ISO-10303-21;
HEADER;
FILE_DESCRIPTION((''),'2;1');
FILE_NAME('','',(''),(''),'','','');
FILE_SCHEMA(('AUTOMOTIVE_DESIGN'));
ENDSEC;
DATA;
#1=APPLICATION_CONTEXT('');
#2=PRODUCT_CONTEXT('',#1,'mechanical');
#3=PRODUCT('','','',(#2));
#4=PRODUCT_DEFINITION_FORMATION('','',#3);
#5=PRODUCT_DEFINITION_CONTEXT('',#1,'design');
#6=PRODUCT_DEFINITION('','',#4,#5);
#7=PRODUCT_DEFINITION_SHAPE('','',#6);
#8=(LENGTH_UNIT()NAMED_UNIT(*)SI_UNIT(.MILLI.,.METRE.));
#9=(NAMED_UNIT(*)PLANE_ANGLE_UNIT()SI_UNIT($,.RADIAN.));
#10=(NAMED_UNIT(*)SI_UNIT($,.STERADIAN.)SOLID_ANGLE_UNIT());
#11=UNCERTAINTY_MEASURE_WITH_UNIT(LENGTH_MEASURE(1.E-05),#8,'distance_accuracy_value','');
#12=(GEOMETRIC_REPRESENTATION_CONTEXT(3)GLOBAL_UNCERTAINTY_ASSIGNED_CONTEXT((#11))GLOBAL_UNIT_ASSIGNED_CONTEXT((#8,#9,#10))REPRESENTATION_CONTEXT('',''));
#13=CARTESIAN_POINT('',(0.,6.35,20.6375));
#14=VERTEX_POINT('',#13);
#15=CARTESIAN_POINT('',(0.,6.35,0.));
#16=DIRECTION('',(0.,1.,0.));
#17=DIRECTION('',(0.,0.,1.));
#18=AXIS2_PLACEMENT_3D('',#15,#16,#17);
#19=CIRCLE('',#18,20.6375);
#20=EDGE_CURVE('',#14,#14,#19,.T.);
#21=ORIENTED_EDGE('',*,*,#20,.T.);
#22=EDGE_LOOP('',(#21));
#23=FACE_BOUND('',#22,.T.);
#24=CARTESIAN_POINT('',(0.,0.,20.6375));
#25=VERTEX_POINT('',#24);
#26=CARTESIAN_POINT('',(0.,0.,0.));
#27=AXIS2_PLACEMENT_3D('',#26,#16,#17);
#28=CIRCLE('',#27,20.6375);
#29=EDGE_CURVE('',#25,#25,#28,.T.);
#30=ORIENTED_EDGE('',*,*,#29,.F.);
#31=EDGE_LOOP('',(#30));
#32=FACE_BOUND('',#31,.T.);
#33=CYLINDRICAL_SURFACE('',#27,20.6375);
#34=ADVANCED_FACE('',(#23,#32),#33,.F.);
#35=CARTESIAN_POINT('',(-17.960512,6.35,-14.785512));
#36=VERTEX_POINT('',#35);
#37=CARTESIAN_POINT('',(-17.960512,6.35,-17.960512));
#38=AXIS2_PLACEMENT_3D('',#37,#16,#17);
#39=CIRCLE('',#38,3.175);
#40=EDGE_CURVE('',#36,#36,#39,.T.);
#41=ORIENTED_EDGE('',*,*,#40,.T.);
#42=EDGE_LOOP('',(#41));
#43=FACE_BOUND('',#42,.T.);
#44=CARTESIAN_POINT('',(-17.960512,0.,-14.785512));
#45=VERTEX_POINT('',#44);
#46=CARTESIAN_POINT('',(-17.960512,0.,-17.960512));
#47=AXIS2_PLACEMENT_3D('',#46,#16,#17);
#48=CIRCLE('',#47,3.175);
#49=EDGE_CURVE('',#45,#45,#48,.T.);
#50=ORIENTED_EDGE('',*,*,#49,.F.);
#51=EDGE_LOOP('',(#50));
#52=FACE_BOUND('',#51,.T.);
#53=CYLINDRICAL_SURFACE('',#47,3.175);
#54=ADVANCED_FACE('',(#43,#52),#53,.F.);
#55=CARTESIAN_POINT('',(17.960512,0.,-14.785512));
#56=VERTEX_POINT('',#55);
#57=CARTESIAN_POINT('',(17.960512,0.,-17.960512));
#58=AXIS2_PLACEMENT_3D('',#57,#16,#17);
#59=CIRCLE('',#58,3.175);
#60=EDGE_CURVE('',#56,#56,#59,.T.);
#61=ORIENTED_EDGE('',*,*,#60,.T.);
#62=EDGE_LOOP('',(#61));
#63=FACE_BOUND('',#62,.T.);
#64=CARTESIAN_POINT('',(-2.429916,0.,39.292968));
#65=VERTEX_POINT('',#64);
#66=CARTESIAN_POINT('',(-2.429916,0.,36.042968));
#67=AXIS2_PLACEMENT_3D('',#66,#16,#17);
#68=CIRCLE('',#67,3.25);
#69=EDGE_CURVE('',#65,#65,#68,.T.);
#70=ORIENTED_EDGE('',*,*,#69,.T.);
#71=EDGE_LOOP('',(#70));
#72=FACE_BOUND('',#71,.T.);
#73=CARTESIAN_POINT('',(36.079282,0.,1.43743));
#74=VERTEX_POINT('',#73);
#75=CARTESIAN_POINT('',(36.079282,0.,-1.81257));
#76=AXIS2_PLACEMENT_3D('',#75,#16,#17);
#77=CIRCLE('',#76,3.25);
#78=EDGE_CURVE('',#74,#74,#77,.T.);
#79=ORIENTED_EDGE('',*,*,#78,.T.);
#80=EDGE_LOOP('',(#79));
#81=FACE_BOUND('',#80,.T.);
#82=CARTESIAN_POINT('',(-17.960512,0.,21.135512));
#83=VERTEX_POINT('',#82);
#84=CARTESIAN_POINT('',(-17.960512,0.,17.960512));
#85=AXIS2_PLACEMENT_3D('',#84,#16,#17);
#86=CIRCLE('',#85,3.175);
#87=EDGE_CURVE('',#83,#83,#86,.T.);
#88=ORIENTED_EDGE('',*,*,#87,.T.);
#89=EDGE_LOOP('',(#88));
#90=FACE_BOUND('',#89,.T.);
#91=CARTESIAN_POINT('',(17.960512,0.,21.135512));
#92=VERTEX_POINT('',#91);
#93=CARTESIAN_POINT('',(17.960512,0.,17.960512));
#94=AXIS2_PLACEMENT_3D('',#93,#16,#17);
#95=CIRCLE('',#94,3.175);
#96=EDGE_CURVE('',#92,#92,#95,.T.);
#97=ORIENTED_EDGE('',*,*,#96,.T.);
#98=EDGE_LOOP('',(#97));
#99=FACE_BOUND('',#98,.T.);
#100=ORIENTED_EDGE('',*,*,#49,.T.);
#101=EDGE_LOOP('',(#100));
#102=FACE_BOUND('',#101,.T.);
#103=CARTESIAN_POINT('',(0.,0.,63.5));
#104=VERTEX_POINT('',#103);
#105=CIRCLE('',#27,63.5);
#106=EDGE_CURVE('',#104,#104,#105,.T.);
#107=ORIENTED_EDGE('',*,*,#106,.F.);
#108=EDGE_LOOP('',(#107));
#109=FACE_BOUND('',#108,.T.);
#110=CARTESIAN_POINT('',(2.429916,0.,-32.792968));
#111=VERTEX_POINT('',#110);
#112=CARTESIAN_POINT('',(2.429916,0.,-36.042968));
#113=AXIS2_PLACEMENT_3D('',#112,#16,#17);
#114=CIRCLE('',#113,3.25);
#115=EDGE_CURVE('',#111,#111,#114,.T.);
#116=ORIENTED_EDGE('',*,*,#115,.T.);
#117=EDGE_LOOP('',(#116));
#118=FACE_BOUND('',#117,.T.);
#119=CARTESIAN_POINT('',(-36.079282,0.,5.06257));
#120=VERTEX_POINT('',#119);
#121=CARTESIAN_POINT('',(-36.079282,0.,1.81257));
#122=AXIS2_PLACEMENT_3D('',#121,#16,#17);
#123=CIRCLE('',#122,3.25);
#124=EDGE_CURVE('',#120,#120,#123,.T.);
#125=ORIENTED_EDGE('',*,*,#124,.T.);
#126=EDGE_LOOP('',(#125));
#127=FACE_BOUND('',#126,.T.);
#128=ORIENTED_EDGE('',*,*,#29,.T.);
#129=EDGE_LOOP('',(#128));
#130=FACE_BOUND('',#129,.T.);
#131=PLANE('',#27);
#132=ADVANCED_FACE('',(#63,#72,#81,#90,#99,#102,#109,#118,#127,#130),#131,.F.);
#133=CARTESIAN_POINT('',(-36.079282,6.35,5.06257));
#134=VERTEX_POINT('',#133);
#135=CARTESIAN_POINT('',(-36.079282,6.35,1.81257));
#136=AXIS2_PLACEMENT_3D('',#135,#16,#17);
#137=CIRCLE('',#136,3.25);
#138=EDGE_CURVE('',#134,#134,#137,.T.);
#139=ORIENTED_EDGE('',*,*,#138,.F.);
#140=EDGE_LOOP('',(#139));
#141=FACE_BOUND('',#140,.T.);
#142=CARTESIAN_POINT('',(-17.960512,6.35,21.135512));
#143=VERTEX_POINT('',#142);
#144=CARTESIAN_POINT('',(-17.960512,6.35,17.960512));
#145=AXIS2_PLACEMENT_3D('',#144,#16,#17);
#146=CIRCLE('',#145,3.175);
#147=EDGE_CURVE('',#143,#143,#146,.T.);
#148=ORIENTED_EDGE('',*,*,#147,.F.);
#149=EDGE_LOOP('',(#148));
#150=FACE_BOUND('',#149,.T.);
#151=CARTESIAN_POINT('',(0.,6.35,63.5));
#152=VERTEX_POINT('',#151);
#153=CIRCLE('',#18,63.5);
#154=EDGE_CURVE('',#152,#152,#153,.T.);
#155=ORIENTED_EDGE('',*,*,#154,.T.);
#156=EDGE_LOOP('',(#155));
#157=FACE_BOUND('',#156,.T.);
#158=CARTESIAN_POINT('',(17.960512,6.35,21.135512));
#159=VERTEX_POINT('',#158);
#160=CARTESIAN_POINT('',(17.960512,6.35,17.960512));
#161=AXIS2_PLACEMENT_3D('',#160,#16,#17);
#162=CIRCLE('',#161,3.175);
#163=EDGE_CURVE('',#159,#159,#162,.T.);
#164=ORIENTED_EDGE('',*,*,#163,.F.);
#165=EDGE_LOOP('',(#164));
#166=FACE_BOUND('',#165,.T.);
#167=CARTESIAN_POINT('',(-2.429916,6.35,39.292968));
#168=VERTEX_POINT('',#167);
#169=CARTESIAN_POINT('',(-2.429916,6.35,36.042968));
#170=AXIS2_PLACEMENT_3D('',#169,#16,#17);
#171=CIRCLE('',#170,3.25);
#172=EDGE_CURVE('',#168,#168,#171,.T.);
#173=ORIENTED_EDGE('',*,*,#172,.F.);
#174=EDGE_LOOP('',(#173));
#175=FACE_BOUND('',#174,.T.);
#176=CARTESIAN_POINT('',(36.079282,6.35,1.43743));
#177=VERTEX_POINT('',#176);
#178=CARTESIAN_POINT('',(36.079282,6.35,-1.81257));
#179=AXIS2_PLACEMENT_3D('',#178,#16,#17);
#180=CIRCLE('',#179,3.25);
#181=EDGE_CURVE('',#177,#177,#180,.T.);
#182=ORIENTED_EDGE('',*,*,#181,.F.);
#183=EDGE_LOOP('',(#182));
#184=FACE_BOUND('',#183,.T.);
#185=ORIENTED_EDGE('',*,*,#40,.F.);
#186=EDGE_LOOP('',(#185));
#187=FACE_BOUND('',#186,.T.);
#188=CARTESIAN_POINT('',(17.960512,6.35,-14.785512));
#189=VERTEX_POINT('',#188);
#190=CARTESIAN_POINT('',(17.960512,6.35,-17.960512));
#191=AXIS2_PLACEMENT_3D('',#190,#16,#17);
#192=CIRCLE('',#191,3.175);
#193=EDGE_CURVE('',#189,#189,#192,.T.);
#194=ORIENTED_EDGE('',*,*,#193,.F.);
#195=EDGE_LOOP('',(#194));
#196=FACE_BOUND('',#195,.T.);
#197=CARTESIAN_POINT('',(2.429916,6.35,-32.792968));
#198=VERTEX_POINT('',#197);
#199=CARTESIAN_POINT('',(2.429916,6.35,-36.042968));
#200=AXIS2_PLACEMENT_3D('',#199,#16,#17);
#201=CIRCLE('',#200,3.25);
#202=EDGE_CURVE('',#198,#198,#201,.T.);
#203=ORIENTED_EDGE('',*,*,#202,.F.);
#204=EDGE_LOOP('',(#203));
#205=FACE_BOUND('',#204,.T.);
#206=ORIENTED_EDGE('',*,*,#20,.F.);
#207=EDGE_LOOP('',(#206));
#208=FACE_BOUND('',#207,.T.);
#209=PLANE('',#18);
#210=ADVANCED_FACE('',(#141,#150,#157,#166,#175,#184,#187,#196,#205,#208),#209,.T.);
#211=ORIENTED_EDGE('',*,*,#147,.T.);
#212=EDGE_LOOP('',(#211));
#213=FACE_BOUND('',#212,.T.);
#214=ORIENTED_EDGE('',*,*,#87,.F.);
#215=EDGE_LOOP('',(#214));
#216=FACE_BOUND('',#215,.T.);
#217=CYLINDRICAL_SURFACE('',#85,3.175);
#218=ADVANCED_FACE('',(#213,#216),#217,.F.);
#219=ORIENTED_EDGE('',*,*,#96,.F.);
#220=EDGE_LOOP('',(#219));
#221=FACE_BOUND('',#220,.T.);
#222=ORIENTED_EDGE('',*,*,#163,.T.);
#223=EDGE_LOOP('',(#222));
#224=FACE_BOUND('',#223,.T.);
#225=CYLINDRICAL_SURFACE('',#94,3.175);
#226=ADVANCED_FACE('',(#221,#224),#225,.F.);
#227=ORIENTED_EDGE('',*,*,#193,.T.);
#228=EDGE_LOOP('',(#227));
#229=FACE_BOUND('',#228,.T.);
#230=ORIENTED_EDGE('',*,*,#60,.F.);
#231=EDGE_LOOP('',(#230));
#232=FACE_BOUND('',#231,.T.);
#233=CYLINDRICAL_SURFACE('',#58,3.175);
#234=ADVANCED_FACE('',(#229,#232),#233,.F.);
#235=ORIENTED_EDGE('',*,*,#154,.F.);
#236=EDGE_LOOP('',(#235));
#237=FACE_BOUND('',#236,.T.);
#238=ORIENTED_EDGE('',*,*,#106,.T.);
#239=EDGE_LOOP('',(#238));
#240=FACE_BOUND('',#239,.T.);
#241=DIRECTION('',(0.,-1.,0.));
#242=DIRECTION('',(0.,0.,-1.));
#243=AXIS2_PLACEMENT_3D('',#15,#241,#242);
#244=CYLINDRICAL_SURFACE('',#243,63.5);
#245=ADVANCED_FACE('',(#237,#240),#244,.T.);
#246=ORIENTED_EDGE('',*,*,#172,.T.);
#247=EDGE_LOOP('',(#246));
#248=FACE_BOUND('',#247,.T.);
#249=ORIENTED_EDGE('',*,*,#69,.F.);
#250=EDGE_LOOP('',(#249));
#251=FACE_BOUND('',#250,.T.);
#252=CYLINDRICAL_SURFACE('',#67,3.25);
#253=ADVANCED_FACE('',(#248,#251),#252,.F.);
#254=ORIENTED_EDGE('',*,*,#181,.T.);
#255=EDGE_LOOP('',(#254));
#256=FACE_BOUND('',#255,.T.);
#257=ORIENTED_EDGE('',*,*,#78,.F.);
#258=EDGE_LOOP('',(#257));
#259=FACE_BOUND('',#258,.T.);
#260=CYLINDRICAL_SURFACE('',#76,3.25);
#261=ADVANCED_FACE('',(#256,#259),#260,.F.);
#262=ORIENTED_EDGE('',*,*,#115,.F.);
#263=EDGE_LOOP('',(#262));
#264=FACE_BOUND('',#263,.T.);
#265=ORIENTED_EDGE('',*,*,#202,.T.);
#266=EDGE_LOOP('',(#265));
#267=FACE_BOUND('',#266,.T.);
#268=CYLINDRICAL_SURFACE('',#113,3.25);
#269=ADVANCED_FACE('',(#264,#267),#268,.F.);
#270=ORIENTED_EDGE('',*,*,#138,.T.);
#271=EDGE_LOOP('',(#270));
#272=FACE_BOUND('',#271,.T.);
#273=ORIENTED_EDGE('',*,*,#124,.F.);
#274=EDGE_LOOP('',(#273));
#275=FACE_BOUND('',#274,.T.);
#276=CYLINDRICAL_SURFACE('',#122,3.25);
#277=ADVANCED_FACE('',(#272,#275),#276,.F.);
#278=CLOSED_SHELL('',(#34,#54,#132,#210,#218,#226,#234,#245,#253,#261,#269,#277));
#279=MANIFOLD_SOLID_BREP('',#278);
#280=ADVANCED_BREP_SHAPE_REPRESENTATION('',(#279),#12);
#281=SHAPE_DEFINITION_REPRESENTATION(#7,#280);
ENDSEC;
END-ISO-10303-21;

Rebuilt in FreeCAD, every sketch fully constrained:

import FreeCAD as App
import Part
import Sketcher
Q = App.Units.Quantity

doc = App.newDocument("Part")
body = doc.addObject("PartDesign::Body", "Body")

# Sketch on XZ plane
sketch1 = body.newObject("Sketcher::SketchObject", "Sketch")
sketch1.AttachmentSupport = (doc.getObject("XZ_Plane"), [""])
sketch1.MapMode = "FlatFace"
sketch1.addGeometry(Part.Circle(App.Vector(0, 0, 0), App.Vector(0, 0, 1), 64), False)
sketch1.addConstraint(Sketcher.Constraint("Coincident", 0, 3, -1, 1))
sketch1.addConstraint(Sketcher.Constraint("Diameter", 0, Q("5 in")))
pad1 = body.newObject("PartDesign::Pad", "Pad")
pad1.Profile = sketch1
pad1.Length = Q("0.25 in")
pad1.Reversed = True

# Sketch on XZ plane
sketch2 = body.newObject("Sketcher::SketchObject", "Sketch001")
sketch2.AttachmentSupport = (doc.getObject("XZ_Plane"), [""])
sketch2.MapMode = "FlatFace"
sketch2.AttachmentOffset = App.Placement(App.Vector(0, 0, -0.25 * 25.4), App.Rotation())
sketch2.addGeometry(Part.Circle(App.Vector(0, 0, 0), App.Vector(0, 0, 1), 21), False)
sketch2.addConstraint(Sketcher.Constraint("Coincident", 0, 3, -1, 1))
sketch2.addConstraint(Sketcher.Constraint("Diameter", 0, Q("1.625 in")))
pocket1 = body.newObject("PartDesign::Pocket", "Pocket")
pocket1.Profile = sketch2
pocket1.Type = "ThroughAll"
pocket1.Reversed = True

# Sketch on XZ plane
sketch3 = body.newObject("Sketcher::SketchObject", "Sketch002")
sketch3.AttachmentSupport = (doc.getObject("XZ_Plane"), [""])
sketch3.MapMode = "FlatFace"
sketch3.AttachmentOffset = App.Placement(App.Vector(0, 0, -0.25 * 25.4), App.Rotation())
sketch3.addGeometry(Part.Circle(App.Vector(-18, -18, 0), App.Vector(0, 0, 1), 3.2), False)
sketch3.addGeometry(Part.Circle(App.Vector(18, -18, 0), App.Vector(0, 0, 1), 3.2), False)
sketch3.addGeometry(Part.Circle(App.Vector(18, 18, 0), App.Vector(0, 0, 1), 3.2), False)
sketch3.addGeometry(Part.Circle(App.Vector(-18, 18, 0), App.Vector(0, 0, 1), 3.2), False)
sketch3.addConstraint(Sketcher.Constraint("Equal", 0, 1))
sketch3.addConstraint(Sketcher.Constraint("Equal", 1, 2))
sketch3.addConstraint(Sketcher.Constraint("Equal", 2, 3))
sketch3.addConstraint(Sketcher.Constraint("Symmetric", 0, 3, 2, 3, -1, 1))
sketch3.addConstraint(Sketcher.Constraint("Symmetric", 1, 3, 3, 3, -1, 1))
sketch3.addConstraint(Sketcher.Constraint("Symmetric", 0, 3, 1, 3, -2))
sketch3.addConstraint(Sketcher.Constraint("Diameter", 0, Q("0.25 in")))
sketch3.addConstraint(Sketcher.Constraint("DistanceX", 0, 3, -1, 1, Q("17.960512 mm")))
sketch3.addConstraint(Sketcher.Constraint("DistanceY", 0, 3, -1, 1, Q("17.960512 mm")))
pocket2 = body.newObject("PartDesign::Pocket", "Pocket001")
pocket2.Profile = sketch3
pocket2.Type = "ThroughAll"
pocket2.Reversed = True

# Sketch on XZ plane
sketch4 = body.newObject("Sketcher::SketchObject", "Sketch003")
sketch4.AttachmentSupport = (doc.getObject("XZ_Plane"), [""])
sketch4.MapMode = "FlatFace"
sketch4.AttachmentOffset = App.Placement(App.Vector(0, 0, -0.25 * 25.4), App.Rotation())
sketch4.addGeometry(Part.Circle(App.Vector(-36.1, 1.8, 0), App.Vector(0, 0, 1), 3.2), False)
sketch4.addGeometry(Part.Circle(App.Vector(2.4, -36, 0), App.Vector(0, 0, 1), 3.2), False)
sketch4.addGeometry(Part.Circle(App.Vector(36.1, -1.8, 0), App.Vector(0, 0, 1), 3.2), False)
sketch4.addGeometry(Part.Circle(App.Vector(-2.4, 36, 0), App.Vector(0, 0, 1), 3.2), False)
sketch4.addConstraint(Sketcher.Constraint("Equal", 0, 1))
sketch4.addConstraint(Sketcher.Constraint("Equal", 1, 2))
sketch4.addConstraint(Sketcher.Constraint("Equal", 2, 3))
sketch4.addConstraint(Sketcher.Constraint("Symmetric", 0, 3, 2, 3, -1, 1))
sketch4.addConstraint(Sketcher.Constraint("Symmetric", 1, 3, 3, 3, -1, 1))
sketch4.addConstraint(Sketcher.Constraint("Diameter", 0, Q("6.5 mm")))
sketch4.addConstraint(Sketcher.Constraint("DistanceY", -1, 1, 0, 3, Q("1.81257 mm")))
sketch4.addConstraint(Sketcher.Constraint("DistanceX", 3, 3, 1, 3, Q("4.859831 mm")))
sketch4.addConstraint(Sketcher.Constraint("DistanceX", 0, 3, -1, 1, Q("36.079282 mm")))
sketch4.addConstraint(Sketcher.Constraint("DistanceY", 1, 3, -1, 1, Q("36.042968 mm")))
pocket3 = body.newObject("PartDesign::Pocket", "Pocket002")
pocket3.Profile = sketch4
pocket3.Type = "ThroughAll"
pocket3.Reversed = True

doc.recompute()
